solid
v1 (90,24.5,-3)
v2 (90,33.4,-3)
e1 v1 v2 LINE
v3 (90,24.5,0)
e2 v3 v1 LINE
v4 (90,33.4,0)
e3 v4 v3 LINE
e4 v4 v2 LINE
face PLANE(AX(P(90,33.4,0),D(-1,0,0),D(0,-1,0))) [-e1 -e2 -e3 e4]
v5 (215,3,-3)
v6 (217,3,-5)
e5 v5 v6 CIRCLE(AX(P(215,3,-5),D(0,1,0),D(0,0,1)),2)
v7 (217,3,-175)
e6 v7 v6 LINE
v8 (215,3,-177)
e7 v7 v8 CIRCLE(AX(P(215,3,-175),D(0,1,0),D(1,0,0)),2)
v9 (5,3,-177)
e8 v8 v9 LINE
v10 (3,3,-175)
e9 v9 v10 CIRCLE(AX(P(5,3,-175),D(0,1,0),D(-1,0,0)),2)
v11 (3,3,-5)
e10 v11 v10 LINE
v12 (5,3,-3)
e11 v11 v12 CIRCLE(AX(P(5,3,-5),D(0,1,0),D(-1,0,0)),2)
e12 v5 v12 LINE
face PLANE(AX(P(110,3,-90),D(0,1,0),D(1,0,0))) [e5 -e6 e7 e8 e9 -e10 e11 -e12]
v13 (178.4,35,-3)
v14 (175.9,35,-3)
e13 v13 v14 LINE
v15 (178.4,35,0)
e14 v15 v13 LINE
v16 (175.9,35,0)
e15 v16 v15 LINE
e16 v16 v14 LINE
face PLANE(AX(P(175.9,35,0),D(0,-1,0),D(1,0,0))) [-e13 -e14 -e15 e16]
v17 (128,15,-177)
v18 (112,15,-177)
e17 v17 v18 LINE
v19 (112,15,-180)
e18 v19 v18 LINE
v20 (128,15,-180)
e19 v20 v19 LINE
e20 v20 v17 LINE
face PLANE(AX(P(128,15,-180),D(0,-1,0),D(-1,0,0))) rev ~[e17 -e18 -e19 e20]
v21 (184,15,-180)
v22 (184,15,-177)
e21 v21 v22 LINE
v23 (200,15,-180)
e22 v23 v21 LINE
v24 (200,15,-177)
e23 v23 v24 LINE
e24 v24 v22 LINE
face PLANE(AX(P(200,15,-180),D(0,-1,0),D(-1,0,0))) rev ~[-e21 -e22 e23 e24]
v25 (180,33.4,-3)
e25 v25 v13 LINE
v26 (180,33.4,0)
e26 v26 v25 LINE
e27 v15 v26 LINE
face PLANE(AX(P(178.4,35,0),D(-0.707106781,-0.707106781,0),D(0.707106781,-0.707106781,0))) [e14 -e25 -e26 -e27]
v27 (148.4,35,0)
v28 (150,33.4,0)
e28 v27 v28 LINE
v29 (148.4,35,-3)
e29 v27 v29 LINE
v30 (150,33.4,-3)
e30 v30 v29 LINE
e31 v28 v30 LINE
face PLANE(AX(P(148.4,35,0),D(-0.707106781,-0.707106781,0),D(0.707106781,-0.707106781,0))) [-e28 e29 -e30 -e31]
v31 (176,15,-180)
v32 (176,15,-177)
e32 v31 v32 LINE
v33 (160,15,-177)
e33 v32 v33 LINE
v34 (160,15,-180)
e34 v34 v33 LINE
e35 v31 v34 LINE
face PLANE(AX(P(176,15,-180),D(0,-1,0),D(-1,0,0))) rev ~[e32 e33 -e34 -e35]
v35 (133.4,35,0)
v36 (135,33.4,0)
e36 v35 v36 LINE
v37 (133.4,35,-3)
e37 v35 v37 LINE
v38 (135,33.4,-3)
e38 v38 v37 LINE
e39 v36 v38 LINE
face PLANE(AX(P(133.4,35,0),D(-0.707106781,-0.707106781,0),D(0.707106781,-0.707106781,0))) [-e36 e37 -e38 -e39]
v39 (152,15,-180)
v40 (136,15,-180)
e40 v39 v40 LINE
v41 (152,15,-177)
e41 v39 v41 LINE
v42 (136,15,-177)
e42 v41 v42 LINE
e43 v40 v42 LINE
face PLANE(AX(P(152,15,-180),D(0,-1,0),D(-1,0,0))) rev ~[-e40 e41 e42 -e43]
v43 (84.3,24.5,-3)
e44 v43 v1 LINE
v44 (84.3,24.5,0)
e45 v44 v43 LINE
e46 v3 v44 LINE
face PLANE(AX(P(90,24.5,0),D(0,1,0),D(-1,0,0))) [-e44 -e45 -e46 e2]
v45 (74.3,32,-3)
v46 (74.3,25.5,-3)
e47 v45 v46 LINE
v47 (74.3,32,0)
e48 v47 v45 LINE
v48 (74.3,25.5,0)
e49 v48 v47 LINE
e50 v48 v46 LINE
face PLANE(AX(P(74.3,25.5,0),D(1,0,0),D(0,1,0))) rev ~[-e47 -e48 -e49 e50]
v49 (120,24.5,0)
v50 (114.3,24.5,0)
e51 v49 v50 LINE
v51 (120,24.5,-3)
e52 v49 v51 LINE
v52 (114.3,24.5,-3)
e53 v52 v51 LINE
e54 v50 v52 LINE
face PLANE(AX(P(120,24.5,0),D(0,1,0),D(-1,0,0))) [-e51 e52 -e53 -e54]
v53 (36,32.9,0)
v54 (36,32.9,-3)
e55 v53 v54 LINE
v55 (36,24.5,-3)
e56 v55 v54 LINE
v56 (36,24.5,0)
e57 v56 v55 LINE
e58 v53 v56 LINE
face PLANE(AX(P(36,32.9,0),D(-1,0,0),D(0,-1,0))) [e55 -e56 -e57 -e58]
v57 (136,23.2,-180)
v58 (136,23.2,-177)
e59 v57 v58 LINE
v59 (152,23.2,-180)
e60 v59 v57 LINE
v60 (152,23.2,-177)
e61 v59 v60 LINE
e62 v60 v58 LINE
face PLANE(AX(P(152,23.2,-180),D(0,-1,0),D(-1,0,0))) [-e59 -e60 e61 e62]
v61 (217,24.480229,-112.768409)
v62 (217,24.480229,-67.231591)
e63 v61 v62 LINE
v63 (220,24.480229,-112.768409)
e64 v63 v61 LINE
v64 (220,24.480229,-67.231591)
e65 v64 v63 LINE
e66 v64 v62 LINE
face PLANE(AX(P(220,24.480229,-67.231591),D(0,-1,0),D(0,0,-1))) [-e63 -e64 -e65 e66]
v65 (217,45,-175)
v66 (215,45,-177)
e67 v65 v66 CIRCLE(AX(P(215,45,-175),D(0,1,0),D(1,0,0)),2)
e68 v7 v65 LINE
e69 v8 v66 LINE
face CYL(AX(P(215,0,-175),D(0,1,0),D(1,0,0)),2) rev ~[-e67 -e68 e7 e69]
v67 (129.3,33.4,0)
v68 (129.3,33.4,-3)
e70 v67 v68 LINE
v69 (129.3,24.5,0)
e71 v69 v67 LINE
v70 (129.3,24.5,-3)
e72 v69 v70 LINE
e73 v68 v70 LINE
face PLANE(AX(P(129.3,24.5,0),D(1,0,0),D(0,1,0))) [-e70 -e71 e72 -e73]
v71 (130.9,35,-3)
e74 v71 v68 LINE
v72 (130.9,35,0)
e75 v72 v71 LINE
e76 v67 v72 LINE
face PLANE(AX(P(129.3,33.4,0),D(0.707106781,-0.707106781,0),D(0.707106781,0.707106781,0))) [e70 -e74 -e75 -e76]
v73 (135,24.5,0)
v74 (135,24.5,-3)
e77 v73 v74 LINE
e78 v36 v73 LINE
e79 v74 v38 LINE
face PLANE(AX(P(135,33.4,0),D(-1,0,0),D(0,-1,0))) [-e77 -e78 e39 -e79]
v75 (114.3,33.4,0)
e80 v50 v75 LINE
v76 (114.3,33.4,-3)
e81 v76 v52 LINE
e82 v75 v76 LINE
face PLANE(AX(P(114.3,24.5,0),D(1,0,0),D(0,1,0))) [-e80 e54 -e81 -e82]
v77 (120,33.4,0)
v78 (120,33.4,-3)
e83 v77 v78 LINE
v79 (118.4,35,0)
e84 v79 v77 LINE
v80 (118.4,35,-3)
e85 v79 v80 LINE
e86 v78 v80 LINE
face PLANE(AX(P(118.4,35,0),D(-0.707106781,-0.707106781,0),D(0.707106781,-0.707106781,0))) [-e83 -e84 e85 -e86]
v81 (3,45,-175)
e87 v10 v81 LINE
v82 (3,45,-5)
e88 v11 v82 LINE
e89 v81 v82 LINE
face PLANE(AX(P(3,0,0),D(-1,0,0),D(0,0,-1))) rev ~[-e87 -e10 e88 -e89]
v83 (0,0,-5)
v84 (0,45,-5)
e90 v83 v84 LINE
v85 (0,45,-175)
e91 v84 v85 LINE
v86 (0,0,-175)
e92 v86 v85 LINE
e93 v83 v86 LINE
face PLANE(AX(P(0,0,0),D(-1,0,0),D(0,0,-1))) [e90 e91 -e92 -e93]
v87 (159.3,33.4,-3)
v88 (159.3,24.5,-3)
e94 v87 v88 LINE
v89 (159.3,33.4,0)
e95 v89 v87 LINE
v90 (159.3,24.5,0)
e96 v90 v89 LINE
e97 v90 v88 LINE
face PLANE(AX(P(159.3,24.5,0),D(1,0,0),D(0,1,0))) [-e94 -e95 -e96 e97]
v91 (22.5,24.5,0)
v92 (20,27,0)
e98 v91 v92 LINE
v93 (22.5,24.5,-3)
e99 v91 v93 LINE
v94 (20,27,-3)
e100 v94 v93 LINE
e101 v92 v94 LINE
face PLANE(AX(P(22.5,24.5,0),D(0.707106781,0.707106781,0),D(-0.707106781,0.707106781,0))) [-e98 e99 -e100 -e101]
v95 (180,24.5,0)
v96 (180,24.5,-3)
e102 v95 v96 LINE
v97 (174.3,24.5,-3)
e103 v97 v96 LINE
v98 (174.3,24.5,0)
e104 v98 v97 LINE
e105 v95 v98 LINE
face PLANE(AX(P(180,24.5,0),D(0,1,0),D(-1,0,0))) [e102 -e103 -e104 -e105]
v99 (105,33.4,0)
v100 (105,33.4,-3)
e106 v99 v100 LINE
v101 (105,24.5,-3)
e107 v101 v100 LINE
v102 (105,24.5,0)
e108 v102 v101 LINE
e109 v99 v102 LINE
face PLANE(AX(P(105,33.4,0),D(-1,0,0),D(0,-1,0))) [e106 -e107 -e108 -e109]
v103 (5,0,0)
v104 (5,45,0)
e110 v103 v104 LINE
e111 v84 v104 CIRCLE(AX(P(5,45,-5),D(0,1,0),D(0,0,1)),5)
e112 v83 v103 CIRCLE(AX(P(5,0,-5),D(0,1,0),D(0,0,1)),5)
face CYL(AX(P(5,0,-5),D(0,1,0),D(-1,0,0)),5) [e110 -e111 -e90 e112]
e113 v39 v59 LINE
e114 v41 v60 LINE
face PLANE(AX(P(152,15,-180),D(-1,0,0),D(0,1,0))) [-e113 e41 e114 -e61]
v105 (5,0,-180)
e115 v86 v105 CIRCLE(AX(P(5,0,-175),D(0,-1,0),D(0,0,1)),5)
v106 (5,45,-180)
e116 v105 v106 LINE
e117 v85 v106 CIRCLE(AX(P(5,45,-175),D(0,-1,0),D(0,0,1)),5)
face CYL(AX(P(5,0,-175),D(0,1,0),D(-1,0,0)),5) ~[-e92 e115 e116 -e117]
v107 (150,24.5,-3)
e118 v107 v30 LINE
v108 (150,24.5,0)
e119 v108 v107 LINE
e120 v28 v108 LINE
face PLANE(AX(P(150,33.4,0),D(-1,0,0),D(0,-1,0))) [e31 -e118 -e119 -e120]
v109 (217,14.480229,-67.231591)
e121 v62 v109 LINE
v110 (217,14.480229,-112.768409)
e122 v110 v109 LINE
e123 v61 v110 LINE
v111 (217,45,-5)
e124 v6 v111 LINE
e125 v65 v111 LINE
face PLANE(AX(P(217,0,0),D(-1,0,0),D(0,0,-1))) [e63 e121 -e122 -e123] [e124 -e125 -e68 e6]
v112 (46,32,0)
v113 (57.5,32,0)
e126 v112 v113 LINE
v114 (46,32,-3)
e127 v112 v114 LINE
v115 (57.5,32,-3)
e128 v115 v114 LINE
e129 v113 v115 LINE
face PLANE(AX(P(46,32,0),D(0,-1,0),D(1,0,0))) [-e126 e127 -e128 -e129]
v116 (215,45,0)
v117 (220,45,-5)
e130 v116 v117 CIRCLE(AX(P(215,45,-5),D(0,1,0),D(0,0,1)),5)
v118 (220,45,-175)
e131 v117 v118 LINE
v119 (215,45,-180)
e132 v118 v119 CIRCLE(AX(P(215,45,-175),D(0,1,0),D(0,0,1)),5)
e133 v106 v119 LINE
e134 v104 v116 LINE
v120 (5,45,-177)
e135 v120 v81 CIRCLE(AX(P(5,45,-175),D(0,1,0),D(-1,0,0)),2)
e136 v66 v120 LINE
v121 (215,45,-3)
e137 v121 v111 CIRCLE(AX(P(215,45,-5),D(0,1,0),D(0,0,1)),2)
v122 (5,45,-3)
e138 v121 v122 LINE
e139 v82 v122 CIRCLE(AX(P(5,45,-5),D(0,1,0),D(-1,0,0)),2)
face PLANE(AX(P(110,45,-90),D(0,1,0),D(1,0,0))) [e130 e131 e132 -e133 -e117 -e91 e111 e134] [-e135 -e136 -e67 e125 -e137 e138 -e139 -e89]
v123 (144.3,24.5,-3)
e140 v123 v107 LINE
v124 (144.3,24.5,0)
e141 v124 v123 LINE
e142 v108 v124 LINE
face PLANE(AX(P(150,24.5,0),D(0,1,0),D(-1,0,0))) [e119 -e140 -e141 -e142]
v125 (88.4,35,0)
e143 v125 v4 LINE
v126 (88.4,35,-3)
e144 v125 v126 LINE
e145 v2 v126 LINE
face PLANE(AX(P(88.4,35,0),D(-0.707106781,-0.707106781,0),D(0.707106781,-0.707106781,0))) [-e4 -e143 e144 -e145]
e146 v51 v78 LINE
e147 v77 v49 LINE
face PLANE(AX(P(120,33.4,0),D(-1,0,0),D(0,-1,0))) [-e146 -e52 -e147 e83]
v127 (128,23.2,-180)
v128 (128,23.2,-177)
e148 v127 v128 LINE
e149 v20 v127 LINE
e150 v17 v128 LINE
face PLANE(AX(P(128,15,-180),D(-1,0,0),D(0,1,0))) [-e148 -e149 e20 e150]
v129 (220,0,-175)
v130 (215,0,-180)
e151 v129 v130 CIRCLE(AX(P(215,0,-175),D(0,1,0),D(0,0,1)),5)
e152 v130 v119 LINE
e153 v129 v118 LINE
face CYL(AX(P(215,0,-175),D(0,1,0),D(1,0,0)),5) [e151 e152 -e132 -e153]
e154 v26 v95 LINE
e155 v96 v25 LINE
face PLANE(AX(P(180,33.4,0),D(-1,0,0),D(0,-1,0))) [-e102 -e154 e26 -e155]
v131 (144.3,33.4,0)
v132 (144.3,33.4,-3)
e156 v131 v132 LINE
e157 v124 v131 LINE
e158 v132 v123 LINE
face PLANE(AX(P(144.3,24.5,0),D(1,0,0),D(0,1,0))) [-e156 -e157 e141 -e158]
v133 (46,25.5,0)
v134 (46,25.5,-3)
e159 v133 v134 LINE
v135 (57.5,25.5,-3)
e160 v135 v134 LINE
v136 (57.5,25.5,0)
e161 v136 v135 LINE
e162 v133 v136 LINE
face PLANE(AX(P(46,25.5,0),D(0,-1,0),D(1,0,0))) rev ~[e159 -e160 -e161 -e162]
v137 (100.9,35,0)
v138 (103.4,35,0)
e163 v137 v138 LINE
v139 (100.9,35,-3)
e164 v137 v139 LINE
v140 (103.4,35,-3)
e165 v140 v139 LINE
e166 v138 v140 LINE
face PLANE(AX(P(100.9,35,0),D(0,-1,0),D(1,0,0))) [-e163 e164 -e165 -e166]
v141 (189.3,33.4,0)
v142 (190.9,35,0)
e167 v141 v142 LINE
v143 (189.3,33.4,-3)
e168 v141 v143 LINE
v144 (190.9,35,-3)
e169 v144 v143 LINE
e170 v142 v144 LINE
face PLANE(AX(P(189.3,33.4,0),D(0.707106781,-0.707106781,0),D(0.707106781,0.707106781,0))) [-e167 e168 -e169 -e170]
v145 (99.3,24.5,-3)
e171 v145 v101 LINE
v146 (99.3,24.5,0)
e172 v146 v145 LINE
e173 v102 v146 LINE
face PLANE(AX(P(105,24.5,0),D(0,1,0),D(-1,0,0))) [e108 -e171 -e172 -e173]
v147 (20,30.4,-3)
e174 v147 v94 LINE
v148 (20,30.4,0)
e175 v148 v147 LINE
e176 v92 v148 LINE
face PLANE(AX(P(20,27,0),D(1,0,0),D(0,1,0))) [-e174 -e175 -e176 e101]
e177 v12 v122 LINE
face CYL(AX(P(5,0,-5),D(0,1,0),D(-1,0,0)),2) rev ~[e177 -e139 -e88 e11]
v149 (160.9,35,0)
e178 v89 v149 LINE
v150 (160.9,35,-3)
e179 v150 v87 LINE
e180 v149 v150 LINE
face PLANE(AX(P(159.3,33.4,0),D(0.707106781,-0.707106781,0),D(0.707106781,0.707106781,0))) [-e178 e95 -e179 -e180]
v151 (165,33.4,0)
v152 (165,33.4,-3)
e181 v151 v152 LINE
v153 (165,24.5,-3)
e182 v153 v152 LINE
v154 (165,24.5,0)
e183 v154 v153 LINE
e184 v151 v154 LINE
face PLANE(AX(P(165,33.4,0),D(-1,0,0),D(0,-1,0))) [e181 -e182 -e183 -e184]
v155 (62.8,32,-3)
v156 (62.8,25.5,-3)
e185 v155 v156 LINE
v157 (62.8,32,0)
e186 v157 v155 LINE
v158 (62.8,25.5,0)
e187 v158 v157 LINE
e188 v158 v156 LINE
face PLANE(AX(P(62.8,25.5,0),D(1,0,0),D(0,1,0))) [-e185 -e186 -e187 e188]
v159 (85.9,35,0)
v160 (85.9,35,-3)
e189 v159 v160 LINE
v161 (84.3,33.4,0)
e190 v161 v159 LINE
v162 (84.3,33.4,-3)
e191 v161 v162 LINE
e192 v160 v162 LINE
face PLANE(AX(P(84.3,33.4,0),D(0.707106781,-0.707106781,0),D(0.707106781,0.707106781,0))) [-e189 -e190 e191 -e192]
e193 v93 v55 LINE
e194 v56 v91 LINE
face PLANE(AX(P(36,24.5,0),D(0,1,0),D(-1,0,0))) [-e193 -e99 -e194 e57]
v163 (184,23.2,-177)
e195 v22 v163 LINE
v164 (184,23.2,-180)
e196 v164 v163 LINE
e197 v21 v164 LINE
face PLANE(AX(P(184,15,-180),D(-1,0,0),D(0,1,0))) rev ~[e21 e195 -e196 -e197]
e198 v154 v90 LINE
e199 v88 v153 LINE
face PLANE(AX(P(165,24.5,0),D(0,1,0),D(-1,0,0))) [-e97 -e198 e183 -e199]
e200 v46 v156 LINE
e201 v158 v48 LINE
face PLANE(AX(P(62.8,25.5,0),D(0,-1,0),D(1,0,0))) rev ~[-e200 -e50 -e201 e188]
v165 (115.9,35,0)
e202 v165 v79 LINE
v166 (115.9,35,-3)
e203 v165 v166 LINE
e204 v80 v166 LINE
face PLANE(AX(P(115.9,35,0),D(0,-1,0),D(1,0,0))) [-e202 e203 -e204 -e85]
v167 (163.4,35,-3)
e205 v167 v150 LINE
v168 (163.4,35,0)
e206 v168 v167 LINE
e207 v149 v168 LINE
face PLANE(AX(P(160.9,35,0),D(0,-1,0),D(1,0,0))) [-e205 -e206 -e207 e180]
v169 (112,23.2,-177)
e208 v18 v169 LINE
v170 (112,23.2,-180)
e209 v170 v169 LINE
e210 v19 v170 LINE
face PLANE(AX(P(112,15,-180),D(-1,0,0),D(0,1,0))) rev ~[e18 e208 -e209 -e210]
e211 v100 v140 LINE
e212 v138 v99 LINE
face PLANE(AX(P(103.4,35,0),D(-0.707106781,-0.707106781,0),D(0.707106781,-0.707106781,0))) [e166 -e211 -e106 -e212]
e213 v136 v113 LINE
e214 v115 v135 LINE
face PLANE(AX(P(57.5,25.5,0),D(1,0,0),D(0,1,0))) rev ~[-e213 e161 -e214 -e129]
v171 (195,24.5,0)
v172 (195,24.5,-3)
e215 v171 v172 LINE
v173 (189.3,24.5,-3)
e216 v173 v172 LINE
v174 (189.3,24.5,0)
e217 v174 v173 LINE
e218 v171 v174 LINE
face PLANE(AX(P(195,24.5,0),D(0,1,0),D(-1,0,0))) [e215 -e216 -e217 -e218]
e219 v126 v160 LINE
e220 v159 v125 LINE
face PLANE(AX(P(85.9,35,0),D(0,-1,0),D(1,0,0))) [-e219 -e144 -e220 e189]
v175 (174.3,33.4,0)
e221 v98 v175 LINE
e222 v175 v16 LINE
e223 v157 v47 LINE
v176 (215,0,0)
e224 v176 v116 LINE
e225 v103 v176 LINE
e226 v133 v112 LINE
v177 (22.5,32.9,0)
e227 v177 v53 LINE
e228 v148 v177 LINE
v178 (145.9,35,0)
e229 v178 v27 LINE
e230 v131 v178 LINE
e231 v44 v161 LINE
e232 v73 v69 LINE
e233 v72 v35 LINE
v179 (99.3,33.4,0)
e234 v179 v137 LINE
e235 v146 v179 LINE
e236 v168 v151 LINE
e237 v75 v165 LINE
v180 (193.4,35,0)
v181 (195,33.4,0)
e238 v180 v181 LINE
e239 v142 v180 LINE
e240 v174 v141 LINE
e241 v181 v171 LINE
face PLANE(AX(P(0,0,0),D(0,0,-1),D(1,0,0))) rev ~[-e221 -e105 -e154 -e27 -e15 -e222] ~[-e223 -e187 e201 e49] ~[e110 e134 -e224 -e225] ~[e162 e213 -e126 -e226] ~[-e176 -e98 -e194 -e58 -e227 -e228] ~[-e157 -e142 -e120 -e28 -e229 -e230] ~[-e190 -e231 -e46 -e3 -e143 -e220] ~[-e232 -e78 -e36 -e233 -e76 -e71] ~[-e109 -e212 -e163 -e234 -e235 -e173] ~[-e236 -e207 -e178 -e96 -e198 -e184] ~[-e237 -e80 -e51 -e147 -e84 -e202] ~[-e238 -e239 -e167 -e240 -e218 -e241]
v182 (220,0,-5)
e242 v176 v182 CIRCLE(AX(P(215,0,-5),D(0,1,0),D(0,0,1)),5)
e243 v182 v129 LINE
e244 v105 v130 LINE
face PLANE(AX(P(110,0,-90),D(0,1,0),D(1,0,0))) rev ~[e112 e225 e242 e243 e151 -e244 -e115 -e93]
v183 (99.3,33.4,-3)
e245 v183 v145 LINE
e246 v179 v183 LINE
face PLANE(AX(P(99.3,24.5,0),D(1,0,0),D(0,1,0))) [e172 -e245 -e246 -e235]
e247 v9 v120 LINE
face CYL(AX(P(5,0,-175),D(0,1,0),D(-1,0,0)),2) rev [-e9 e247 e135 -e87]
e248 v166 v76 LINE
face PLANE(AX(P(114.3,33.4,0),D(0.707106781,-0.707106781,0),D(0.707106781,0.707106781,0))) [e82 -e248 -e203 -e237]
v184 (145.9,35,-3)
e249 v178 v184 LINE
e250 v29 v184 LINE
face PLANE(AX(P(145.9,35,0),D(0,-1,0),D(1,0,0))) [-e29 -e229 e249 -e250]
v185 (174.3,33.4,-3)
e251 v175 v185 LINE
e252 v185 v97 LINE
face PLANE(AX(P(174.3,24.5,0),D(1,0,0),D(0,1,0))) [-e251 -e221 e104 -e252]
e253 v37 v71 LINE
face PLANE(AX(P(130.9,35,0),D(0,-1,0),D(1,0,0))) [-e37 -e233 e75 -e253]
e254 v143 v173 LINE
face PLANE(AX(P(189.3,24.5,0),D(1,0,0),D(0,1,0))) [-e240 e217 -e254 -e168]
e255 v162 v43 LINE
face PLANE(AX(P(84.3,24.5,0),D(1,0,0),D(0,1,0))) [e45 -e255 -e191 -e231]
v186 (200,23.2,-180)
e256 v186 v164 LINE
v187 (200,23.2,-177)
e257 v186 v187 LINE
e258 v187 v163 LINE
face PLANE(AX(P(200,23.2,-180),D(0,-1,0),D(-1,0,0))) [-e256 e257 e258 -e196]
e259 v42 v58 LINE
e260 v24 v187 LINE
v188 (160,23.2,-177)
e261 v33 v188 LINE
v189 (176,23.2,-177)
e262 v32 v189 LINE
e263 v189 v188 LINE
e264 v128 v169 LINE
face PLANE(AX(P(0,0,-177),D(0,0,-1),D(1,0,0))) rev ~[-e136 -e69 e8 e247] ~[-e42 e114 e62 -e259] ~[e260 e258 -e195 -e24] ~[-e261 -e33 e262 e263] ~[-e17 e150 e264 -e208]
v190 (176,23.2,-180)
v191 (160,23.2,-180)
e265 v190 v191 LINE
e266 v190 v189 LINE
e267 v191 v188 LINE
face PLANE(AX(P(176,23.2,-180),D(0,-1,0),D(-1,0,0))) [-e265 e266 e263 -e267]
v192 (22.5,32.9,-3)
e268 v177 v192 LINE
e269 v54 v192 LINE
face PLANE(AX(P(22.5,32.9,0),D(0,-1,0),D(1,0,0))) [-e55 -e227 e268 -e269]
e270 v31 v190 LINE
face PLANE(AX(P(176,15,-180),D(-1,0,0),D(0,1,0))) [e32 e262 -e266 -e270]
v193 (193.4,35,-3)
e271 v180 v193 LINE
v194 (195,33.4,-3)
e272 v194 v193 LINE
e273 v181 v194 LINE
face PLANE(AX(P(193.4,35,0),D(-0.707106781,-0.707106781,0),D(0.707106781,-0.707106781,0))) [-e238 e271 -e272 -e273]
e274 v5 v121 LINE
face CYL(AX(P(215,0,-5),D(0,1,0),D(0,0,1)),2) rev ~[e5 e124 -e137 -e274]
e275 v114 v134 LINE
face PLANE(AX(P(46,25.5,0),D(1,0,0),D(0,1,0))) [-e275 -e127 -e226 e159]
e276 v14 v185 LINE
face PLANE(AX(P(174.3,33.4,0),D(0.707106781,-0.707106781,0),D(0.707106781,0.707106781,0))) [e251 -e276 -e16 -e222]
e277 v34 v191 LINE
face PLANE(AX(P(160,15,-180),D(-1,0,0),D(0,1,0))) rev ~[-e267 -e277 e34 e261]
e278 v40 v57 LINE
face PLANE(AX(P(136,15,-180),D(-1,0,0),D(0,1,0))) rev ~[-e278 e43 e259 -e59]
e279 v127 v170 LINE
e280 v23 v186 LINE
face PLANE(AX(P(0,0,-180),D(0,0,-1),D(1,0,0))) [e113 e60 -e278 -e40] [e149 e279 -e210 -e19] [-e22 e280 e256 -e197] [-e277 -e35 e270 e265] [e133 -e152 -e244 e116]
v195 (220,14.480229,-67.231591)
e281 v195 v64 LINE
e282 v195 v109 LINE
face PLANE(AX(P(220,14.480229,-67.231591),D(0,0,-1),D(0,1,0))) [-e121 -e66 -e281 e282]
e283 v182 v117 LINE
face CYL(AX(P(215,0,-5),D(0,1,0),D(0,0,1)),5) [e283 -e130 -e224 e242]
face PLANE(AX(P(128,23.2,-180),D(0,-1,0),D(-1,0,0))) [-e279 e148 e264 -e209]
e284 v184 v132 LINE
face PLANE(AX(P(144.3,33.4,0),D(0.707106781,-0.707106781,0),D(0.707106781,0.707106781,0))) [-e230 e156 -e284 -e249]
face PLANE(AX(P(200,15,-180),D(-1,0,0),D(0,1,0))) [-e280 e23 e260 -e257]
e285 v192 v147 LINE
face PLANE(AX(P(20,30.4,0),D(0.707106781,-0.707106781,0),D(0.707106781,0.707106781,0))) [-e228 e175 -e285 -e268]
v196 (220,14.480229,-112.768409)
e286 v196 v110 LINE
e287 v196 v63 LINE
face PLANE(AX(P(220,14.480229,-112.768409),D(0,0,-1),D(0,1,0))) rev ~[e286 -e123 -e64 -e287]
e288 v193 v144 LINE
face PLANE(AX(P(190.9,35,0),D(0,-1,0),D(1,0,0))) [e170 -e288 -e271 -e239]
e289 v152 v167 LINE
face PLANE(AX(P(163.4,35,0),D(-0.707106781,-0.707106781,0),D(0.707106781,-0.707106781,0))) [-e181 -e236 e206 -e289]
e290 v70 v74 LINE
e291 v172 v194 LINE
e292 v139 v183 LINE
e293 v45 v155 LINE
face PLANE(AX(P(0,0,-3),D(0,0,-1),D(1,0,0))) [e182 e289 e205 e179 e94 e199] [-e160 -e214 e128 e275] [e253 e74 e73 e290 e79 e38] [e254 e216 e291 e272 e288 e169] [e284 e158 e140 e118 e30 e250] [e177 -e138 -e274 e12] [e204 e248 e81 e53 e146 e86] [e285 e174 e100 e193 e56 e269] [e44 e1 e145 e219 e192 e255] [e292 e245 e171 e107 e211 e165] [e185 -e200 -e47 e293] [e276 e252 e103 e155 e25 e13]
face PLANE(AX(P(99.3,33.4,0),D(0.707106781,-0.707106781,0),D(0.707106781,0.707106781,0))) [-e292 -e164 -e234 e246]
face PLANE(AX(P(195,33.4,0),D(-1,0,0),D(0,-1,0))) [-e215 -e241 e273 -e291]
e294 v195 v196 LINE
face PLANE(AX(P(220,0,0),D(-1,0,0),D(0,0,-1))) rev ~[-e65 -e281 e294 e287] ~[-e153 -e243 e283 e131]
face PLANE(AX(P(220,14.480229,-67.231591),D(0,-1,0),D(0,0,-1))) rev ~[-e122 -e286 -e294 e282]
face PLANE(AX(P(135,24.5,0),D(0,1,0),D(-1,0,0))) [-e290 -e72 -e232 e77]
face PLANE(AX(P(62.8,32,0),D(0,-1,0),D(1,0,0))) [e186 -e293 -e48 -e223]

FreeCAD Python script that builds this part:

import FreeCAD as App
import Part
import Sketcher
Q = App.Units.Quantity


def edges_at(feature, points):
    """Names of the edges that pass closest to the given points."""
    edges = feature.Shape.Edges
    near = lambda p: min(range(len(edges)), key=lambda i: edges[i].distToShape(Part.Vertex(*p))[0])
    return sorted({f"Edge{near(p) + 1}" for p in points})


def faces_at(feature, points):
    """Names of the faces that lie closest to the given points."""
    faces = feature.Shape.Faces
    near = lambda p: min(range(len(faces)), key=lambda i: faces[i].distToShape(Part.Vertex(*p))[0])
    return sorted({f"Face{near(p) + 1}" for p in points})

doc = App.newDocument("Part")
params = doc.addObject("Spreadsheet::Sheet", "Params")
for row, (alias, value) in enumerate([
    ("sketch1_width", "220 mm"),
    ("sketch1_height", "180 mm"),
    ("pad1_length", "45 mm"),
    ("fillet_radius", "5 mm"),
    ("thickness_wall", "3 mm"),
    ("sketch2_width", "2.5 mm"),
    ("sketch2_width2", "5.7 mm"),
    ("sketch2_height", "8.9 mm"),
    ("pocket1_length", "5 mm"),
    ("sketch3_width", "13.5 mm"),
    ("sketch3_height", "3.4 mm"),
    ("sketch3_height2", "8.4 mm"),
    ("pocket2_length", "5 mm"),
    ("sketch4_width", "11.5 mm"),
    ("sketch4_height", "6.5 mm"),
    ("pocket3_length", "5 mm"),
    ("sketch5_width", "10 mm"),
    ("pocket4_length", "5 mm"),
    ("sketch6_width", "16 mm"),
    ("sketch6_height", "8.2 mm"),
    ("pocket5_length", "5 mm"),
], start=1):
    params.set(f"A{row}", alias)
    params.set(f"B{row}", "=" + value)
    params.setAlias(f"B{row}", alias)

body = doc.addObject("PartDesign::Body", "Body")

# Sketch on XZ plane
sketch1 = body.newObject("Sketcher::SketchObject", "Sketch")
sketch1.AttachmentSupport = (doc.getObject("XZ_Plane"), [""])
sketch1.MapMode = "FlatFace"
sketch1.addGeometry(Part.LineSegment(App.Vector(0, -180, 0), App.Vector(0, 0, 0)), False)
sketch1.addGeometry(Part.LineSegment(App.Vector(0, 0, 0), App.Vector(220, 0, 0)), False)
sketch1.addGeometry(Part.LineSegment(App.Vector(220, 0, 0), App.Vector(220, -180, 0)), False)
sketch1.addGeometry(Part.LineSegment(App.Vector(220, -180, 0), App.Vector(0, -180, 0)), False)
sketch1.addConstraint(Sketcher.Constraint("Coincident", 0, 2, 1, 1))
sketch1.addConstraint(Sketcher.Constraint("Coincident", 1, 2, 2, 1))
sketch1.addConstraint(Sketcher.Constraint("Coincident", 2, 2, 3, 1))
sketch1.addConstraint(Sketcher.Constraint("Coincident", 3, 2, 0, 1))
sketch1.addConstraint(Sketcher.Constraint("Vertical", 0))
sketch1.addConstraint(Sketcher.Constraint("Horizontal", 1))
sketch1.addConstraint(Sketcher.Constraint("Vertical", 2))
sketch1.addConstraint(Sketcher.Constraint("Horizontal", 3))
sketch1.addConstraint(Sketcher.Constraint("Coincident", 0, 2, -1, 1))
sketch1.addConstraint(Sketcher.Constraint("DistanceX", 1, 1, 1, 2, Q("220 mm")))
sketch1.addConstraint(Sketcher.Constraint("DistanceY", 0, 1, 0, 2, Q("180 mm")))
sketch1.setExpression("Constraints[9]", "Params.sketch1_width")
sketch1.setExpression("Constraints[10]", "Params.sketch1_height")
pad1 = body.newObject("PartDesign::Pad", "Pad")
pad1.Profile = sketch1
pad1.setExpression("Length", "Params.pad1_length")
pad1.Reversed = True
doc.recompute()

fillet = body.newObject("PartDesign::Fillet", "Fillet")
fillet.Base = (pad1, edges_at(pad1, [
    (0, 22.5, -180),
    (220, 22.5, -180),
    (220, 22.5, 0),
    (0, 22.5, 0),
]))
fillet.setExpression("Radius", "Params.fillet_radius")
doc.recompute()

thickness = body.newObject("PartDesign::Thickness", "Thickness")
thickness.Base = (fillet, faces_at(fillet, [(110, 45, -90)]))
thickness.setExpression("Value", "Params.thickness_wall")
thickness.Reversed = True
thickness.Join = "Intersection"

# Sketch on XY plane
sketch2 = body.newObject("Sketcher::SketchObject", "Sketch001")
sketch2.AttachmentSupport = (doc.getObject("XY_Plane"), [""])
sketch2.MapMode = "FlatFace"
sketch2.addGeometry(Part.LineSegment(App.Vector(178.4, 35, 0), App.Vector(175.9, 35, 0)), False)
sketch2.addGeometry(Part.LineSegment(App.Vector(175.9, 35, 0), App.Vector(174.3, 33.4, 0)), False)
sketch2.addGeometry(Part.LineSegment(App.Vector(174.3, 33.4, 0), App.Vector(174.3, 24.5, 0)), False)
sketch2.addGeometry(Part.LineSegment(App.Vector(174.3, 24.5, 0), App.Vector(180, 24.5, 0)), False)
sketch2.addGeometry(Part.LineSegment(App.Vector(180, 24.5, 0), App.Vector(180, 33.4, 0)), False)
sketch2.addGeometry(Part.LineSegment(App.Vector(180, 33.4, 0), App.Vector(178.4, 35, 0)), False)
sketch2.addGeometry(Part.LineSegment(App.Vector(193.4, 35, 0), App.Vector(190.9, 35, 0)), False)
sketch2.addGeometry(Part.LineSegment(App.Vector(190.9, 35, 0), App.Vector(189.3, 33.4, 0)), False)
sketch2.addGeometry(Part.LineSegment(App.Vector(189.3, 33.4, 0), App.Vector(189.3, 24.5, 0)), False)
sketch2.addGeometry(Part.LineSegment(App.Vector(189.3, 24.5, 0), App.Vector(195, 24.5, 0)), False)
sketch2.addGeometry(Part.LineSegment(App.Vector(195, 24.5, 0), App.Vector(195, 33.4, 0)), False)
sketch2.addGeometry(Part.LineSegment(App.Vector(195, 33.4, 0), App.Vector(193.4, 35, 0)), False)
sketch2.addGeometry(Part.LineSegment(App.Vector(163.4, 35, 0), App.Vector(160.9, 35, 0)), False)
sketch2.addGeometry(Part.LineSegment(App.Vector(160.9, 35, 0), App.Vector(159.3, 33.4, 0)), False)
sketch2.addGeometry(Part.LineSegment(App.Vector(159.3, 33.4, 0), App.Vector(159.3, 24.5, 0)), False)
sketch2.addGeometry(Part.LineSegment(App.Vector(159.3, 24.5, 0), App.Vector(165, 24.5, 0)), False)
sketch2.addGeometry(Part.LineSegment(App.Vector(165, 24.5, 0), App.Vector(165, 33.4, 0)), False)
sketch2.addGeometry(Part.LineSegment(App.Vector(165, 33.4, 0), App.Vector(163.4, 35, 0)), False)
sketch2.addGeometry(Part.LineSegment(App.Vector(148.4, 35, 0), App.Vector(145.9, 35, 0)), False)
sketch2.addGeometry(Part.LineSegment(App.Vector(145.9, 35, 0), App.Vector(144.3, 33.4, 0)), False)
sketch2.addGeometry(Part.LineSegment(App.Vector(144.3, 33.4, 0), App.Vector(144.3, 24.5, 0)), False)
sketch2.addGeometry(Part.LineSegment(App.Vector(144.3, 24.5, 0), App.Vector(150, 24.5, 0)), False)
sketch2.addGeometry(Part.LineSegment(App.Vector(150, 24.5, 0), App.Vector(150, 33.4, 0)), False)
sketch2.addGeometry(Part.LineSegment(App.Vector(150, 33.4, 0), App.Vector(148.4, 35, 0)), False)
sketch2.addGeometry(Part.LineSegment(App.Vector(133.4, 35, 0), App.Vector(130.9, 35, 0)), False)
sketch2.addGeometry(Part.LineSegment(App.Vector(130.9, 35, 0), App.Vector(129.3, 33.4, 0)), False)
sketch2.addGeometry(Part.LineSegment(App.Vector(129.3, 33.4, 0), App.Vector(129.3, 24.5, 0)), False)
sketch2.addGeometry(Part.LineSegment(App.Vector(129.3, 24.5, 0), App.Vector(135, 24.5, 0)), False)
sketch2.addGeometry(Part.LineSegment(App.Vector(135, 24.5, 0), App.Vector(135, 33.4, 0)), False)
sketch2.addGeometry(Part.LineSegment(App.Vector(135, 33.4, 0), App.Vector(133.4, 35, 0)), False)
sketch2.addGeometry(Part.LineSegment(App.Vector(118.4, 35, 0), App.Vector(115.9, 35, 0)), False)
sketch2.addGeometry(Part.LineSegment(App.Vector(115.9, 35, 0), App.Vector(114.3, 33.4, 0)), False)
sketch2.addGeometry(Part.LineSegment(App.Vector(114.3, 33.4, 0), App.Vector(114.3, 24.5, 0)), False)
sketch2.addGeometry(Part.LineSegment(App.Vector(114.3, 24.5, 0), App.Vector(120, 24.5, 0)), False)
sketch2.addGeometry(Part.LineSegment(App.Vector(120, 24.5, 0), App.Vector(120, 33.4, 0)), False)
sketch2.addGeometry(Part.LineSegment(App.Vector(120, 33.4, 0), App.Vector(118.4, 35, 0)), False)
sketch2.addGeometry(Part.LineSegment(App.Vector(103.4, 35, 0), App.Vector(100.9, 35, 0)), False)
sketch2.addGeometry(Part.LineSegment(App.Vector(100.9, 35, 0), App.Vector(99.3, 33.4, 0)), False)
sketch2.addGeometry(Part.LineSegment(App.Vector(99.3, 33.4, 0), App.Vector(99.3, 24.5, 0)), False)
sketch2.addGeometry(Part.LineSegment(App.Vector(99.3, 24.5, 0), App.Vector(105, 24.5, 0)), False)
sketch2.addGeometry(Part.LineSegment(App.Vector(105, 24.5, 0), App.Vector(105, 33.4, 0)), False)
sketch2.addGeometry(Part.LineSegment(App.Vector(105, 33.4, 0), App.Vector(103.4, 35, 0)), False)
sketch2.addGeometry(Part.LineSegment(App.Vector(88.4, 35, 0), App.Vector(85.9, 35, 0)), False)
sketch2.addGeometry(Part.LineSegment(App.Vector(85.9, 35, 0), App.Vector(84.3, 33.4, 0)), False)
sketch2.addGeometry(Part.LineSegment(App.Vector(84.3, 33.4, 0), App.Vector(84.3, 24.5, 0)), False)
sketch2.addGeometry(Part.LineSegment(App.Vector(84.3, 24.5, 0), App.Vector(90, 24.5, 0)), False)
sketch2.addGeometry(Part.LineSegment(App.Vector(90, 24.5, 0), App.Vector(90, 33.4, 0)), False)
sketch2.addGeometry(Part.LineSegment(App.Vector(90, 33.4, 0), App.Vector(88.4, 35, 0)), False)
sketch2.addConstraint(Sketcher.Constraint("Coincident", 0, 2, 1, 1))
sketch2.addConstraint(Sketcher.Constraint("Coincident", 1, 2, 2, 1))
sketch2.addConstraint(Sketcher.Constraint("Coincident", 2, 2, 3, 1))
sketch2.addConstraint(Sketcher.Constraint("Coincident", 3, 2, 4, 1))
sketch2.addConstraint(Sketcher.Constraint("Coincident", 4, 2, 5, 1))
sketch2.addConstraint(Sketcher.Constraint("Coincident", 5, 2, 0, 1))
sketch2.addConstraint(Sketcher.Constraint("Coincident", 6, 2, 7, 1))
sketch2.addConstraint(Sketcher.Constraint("Coincident", 7, 2, 8, 1))
sketch2.addConstraint(Sketcher.Constraint("Coincident", 8, 2, 9, 1))
sketch2.addConstraint(Sketcher.Constraint("Coincident", 9, 2, 10, 1))
sketch2.addConstraint(Sketcher.Constraint("Coincident", 10, 2, 11, 1))
sketch2.addConstraint(Sketcher.Constraint("Coincident", 11, 2, 6, 1))
sketch2.addConstraint(Sketcher.Constraint("Coincident", 12, 2, 13, 1))
sketch2.addConstraint(Sketcher.Constraint("Coincident", 13, 2, 14, 1))
sketch2.addConstraint(Sketcher.Constraint("Coincident", 14, 2, 15, 1))
sketch2.addConstraint(Sketcher.Constraint("Coincident", 15, 2, 16, 1))
sketch2.addConstraint(Sketcher.Constraint("Coincident", 16, 2, 17, 1))
sketch2.addConstraint(Sketcher.Constraint("Coincident", 17, 2, 12, 1))
sketch2.addConstraint(Sketcher.Constraint("Coincident", 18, 2, 19, 1))
sketch2.addConstraint(Sketcher.Constraint("Coincident", 19, 2, 20, 1))
sketch2.addConstraint(Sketcher.Constraint("Coincident", 20, 2, 21, 1))
sketch2.addConstraint(Sketcher.Constraint("Coincident", 21, 2, 22, 1))
sketch2.addConstraint(Sketcher.Constraint("Coincident", 22, 2, 23, 1))
sketch2.addConstraint(Sketcher.Constraint("Coincident", 23, 2, 18, 1))
sketch2.addConstraint(Sketcher.Constraint("Coincident", 24, 2, 25, 1))
sketch2.addConstraint(Sketcher.Constraint("Coincident", 25, 2, 26, 1))
sketch2.addConstraint(Sketcher.Constraint("Coincident", 26, 2, 27, 1))
sketch2.addConstraint(Sketcher.Constraint("Coincident", 27, 2, 28, 1))
sketch2.addConstraint(Sketcher.Constraint("Coincident", 28, 2, 29, 1))
sketch2.addConstraint(Sketcher.Constraint("Coincident", 29, 2, 24, 1))
sketch2.addConstraint(Sketcher.Constraint("Coincident", 30, 2, 31, 1))
sketch2.addConstraint(Sketcher.Constraint("Coincident", 31, 2, 32, 1))
sketch2.addConstraint(Sketcher.Constraint("Coincident", 32, 2, 33, 1))
sketch2.addConstraint(Sketcher.Constraint("Coincident", 33, 2, 34, 1))
sketch2.addConstraint(Sketcher.Constraint("Coincident", 34, 2, 35, 1))
sketch2.addConstraint(Sketcher.Constraint("Coincident", 35, 2, 30, 1))
sketch2.addConstraint(Sketcher.Constraint("Coincident", 36, 2, 37, 1))
sketch2.addConstraint(Sketcher.Constraint("Coincident", 37, 2, 38, 1))
sketch2.addConstraint(Sketcher.Constraint("Coincident", 38, 2, 39, 1))
sketch2.addConstraint(Sketcher.Constraint("Coincident", 39, 2, 40, 1))
sketch2.addConstraint(Sketcher.Constraint("Coincident", 40, 2, 41, 1))
sketch2.addConstraint(Sketcher.Constraint("Coincident", 41, 2, 36, 1))
sketch2.addConstraint(Sketcher.Constraint("Coincident", 42, 2, 43, 1))
sketch2.addConstraint(Sketcher.Constraint("Coincident", 43, 2, 44, 1))
sketch2.addConstraint(Sketcher.Constraint("Coincident", 44, 2, 45, 1))
sketch2.addConstraint(Sketcher.Constraint("Coincident", 45, 2, 46, 1))
sketch2.addConstraint(Sketcher.Constraint("Coincident", 46, 2, 47, 1))
sketch2.addConstraint(Sketcher.Constraint("Coincident", 47, 2, 42, 1))
sketch2.addConstraint(Sketcher.Constraint("Horizontal", 0))
sketch2.addConstraint(Sketcher.Constraint("Vertical", 2))
sketch2.addConstraint(Sketcher.Constraint("Horizontal", 3))
sketch2.addConstraint(Sketcher.Constraint("Vertical", 4))
sketch2.addConstraint(Sketcher.Constraint("Horizontal", 6))
sketch2.addConstraint(Sketcher.Constraint("Vertical", 8))
sketch2.addConstraint(Sketcher.Constraint("Horizontal", 9))
sketch2.addConstraint(Sketcher.Constraint("Vertical", 10))
sketch2.addConstraint(Sketcher.Constraint("Horizontal", 12))
sketch2.addConstraint(Sketcher.Constraint("Vertical", 14))
sketch2.addConstraint(Sketcher.Constraint("Horizontal", 15))
sketch2.addConstraint(Sketcher.Constraint("Vertical", 16))
sketch2.addConstraint(Sketcher.Constraint("Horizontal", 18))
sketch2.addConstraint(Sketcher.Constraint("Vertical", 20))
sketch2.addConstraint(Sketcher.Constraint("Horizontal", 21))
sketch2.addConstraint(Sketcher.Constraint("Vertical", 22))
sketch2.addConstraint(Sketcher.Constraint("Horizontal", 24))
sketch2.addConstraint(Sketcher.Constraint("Vertical", 26))
sketch2.addConstraint(Sketcher.Constraint("Horizontal", 27))
sketch2.addConstraint(Sketcher.Constraint("Vertical", 28))
sketch2.addConstraint(Sketcher.Constraint("Horizontal", 30))
sketch2.addConstraint(Sketcher.Constraint("Vertical", 32))
sketch2.addConstraint(Sketcher.Constraint("Horizontal", 33))
sketch2.addConstraint(Sketcher.Constraint("Vertical", 34))
sketch2.addConstraint(Sketcher.Constraint("Horizontal", 36))
sketch2.addConstraint(Sketcher.Constraint("Vertical", 38))
sketch2.addConstraint(Sketcher.Constraint("Horizontal", 39))
sketch2.addConstraint(Sketcher.Constraint("Vertical", 40))
sketch2.addConstraint(Sketcher.Constraint("Horizontal", 42))
sketch2.addConstraint(Sketcher.Constraint("Vertical", 44))
sketch2.addConstraint(Sketcher.Constraint("Horizontal", 45))
sketch2.addConstraint(Sketcher.Constraint("Vertical", 46))
sketch2.addConstraint(Sketcher.Constraint("Perpendicular", 1, 5))
sketch2.addConstraint(Sketcher.Constraint("Perpendicular", 5, 7))
sketch2.addConstraint(Sketcher.Constraint("Perpendicular", 7, 11))
sketch2.addConstraint(Sketcher.Constraint("Perpendicular", 11, 13))
sketch2.addConstraint(Sketcher.Constraint("Perpendicular", 13, 17))
sketch2.addConstraint(Sketcher.Constraint("Perpendicular", 17, 19))
sketch2.addConstraint(Sketcher.Constraint("Perpendicular", 19, 23))
sketch2.addConstraint(Sketcher.Constraint("Perpendicular", 23, 25))
sketch2.addConstraint(Sketcher.Constraint("Perpendicular", 25, 29))
sketch2.addConstraint(Sketcher.Constraint("Perpendicular", 29, 31))
sketch2.addConstraint(Sketcher.Constraint("Perpendicular", 31, 35))
sketch2.addConstraint(Sketcher.Constraint("Perpendicular", 35, 37))
sketch2.addConstraint(Sketcher.Constraint("Perpendicular", 37, 41))
sketch2.addConstraint(Sketcher.Constraint("Perpendicular", 41, 43))
sketch2.addConstraint(Sketcher.Constraint("Perpendicular", 43, 47))
sketch2.addConstraint(Sketcher.Constraint("Horizontal", 1, 2, 4, 2))
sketch2.addConstraint(Sketcher.Constraint("Horizontal", 5, 2, 6, 2))
sketch2.addConstraint(Sketcher.Constraint("Horizontal", 4, 2, 7, 2))
sketch2.addConstraint(Sketcher.Constraint("Horizontal", 3, 2, 8, 2))
sketch2.addConstraint(Sketcher.Constraint("Horizontal", 7, 2, 10, 2))
sketch2.addConstraint(Sketcher.Constraint("Horizontal", 11, 2, 12, 2))
sketch2.addConstraint(Sketcher.Constraint("Horizontal", 10, 2, 13, 2))
sketch2.addConstraint(Sketcher.Constraint("Horizontal", 9, 2, 14, 2))
sketch2.addConstraint(Sketcher.Constraint("Horizontal", 13, 2, 16, 2))
sketch2.addConstraint(Sketcher.Constraint("Horizontal", 17, 2, 18, 2))
sketch2.addConstraint(Sketcher.Constraint("Horizontal", 16, 2, 19, 2))
sketch2.addConstraint(Sketcher.Constraint("Horizontal", 15, 2, 20, 2))
sketch2.addConstraint(Sketcher.Constraint("Horizontal", 19, 2, 22, 2))
sketch2.addConstraint(Sketcher.Constraint("Horizontal", 23, 2, 24, 2))
sketch2.addConstraint(Sketcher.Constraint("Horizontal", 22, 2, 25, 2))
sketch2.addConstraint(Sketcher.Constraint("Horizontal", 21, 2, 26, 2))
sketch2.addConstraint(Sketcher.Constraint("Horizontal", 25, 2, 28, 2))
sketch2.addConstraint(Sketcher.Constraint("Horizontal", 29, 2, 30, 2))
sketch2.addConstraint(Sketcher.Constraint("Horizontal", 28, 2, 31, 2))
sketch2.addConstraint(Sketcher.Constraint("Horizontal", 27, 2, 32, 2))
sketch2.addConstraint(Sketcher.Constraint("Horizontal", 31, 2, 34, 2))
sketch2.addConstraint(Sketcher.Constraint("Horizontal", 35, 2, 36, 2))
sketch2.addConstraint(Sketcher.Constraint("Horizontal", 34, 2, 37, 2))
sketch2.addConstraint(Sketcher.Constraint("Horizontal", 33, 2, 38, 2))
sketch2.addConstraint(Sketcher.Constraint("Horizontal", 37, 2, 40, 2))
sketch2.addConstraint(Sketcher.Constraint("Horizontal", 41, 2, 42, 2))
sketch2.addConstraint(Sketcher.Constraint("Horizontal", 40, 2, 43, 2))
sketch2.addConstraint(Sketcher.Constraint("Horizontal", 39, 2, 44, 2))
sketch2.addConstraint(Sketcher.Constraint("Horizontal", 43, 2, 46, 2))
sketch2.addConstraint(Sketcher.Constraint("Equal", 0, 6))
sketch2.addConstraint(Sketcher.Constraint("Equal", 6, 12))
sketch2.addConstraint(Sketcher.Constraint("Equal", 12, 18))
sketch2.addConstraint(Sketcher.Constraint("Equal", 18, 24))
sketch2.addConstraint(Sketcher.Constraint("Equal", 24, 30))
sketch2.addConstraint(Sketcher.Constraint("Equal", 30, 36))
sketch2.addConstraint(Sketcher.Constraint("Equal", 36, 42))
sketch2.addConstraint(Sketcher.Constraint("Equal", 1, 5))
sketch2.addConstraint(Sketcher.Constraint("DistanceX", 0, 2, 0, 1, Q("2.5 mm")))
sketch2.addConstraint(Sketcher.Constraint("DistanceX", 3, 1, 3, 2, Q("5.7 mm")))
sketch2.addConstraint(Sketcher.Constraint("DistanceY", 2, 2, 2, 1, Q("8.9 mm")))
sketch2.addConstraint(Sketcher.Constraint("DistanceY", -1, 1, 0, 2, Q("35 mm")))
sketch2.addConstraint(Sketcher.Constraint("DistanceX", -1, 1, 3, 2, Q("180 mm")))
sketch2.addConstraint(Sketcher.Constraint("DistanceX", -1, 1, 9, 2, Q("195 mm")))
sketch2.addConstraint(Sketcher.Constraint("DistanceX", -1, 1, 15, 2, Q("165 mm")))
sketch2.addConstraint(Sketcher.Constraint("DistanceX", -1, 1, 21, 2, Q("150 mm")))
sketch2.addConstraint(Sketcher.Constraint("DistanceX", -1, 1, 27, 2, Q("135 mm")))
sketch2.addConstraint(Sketcher.Constraint("DistanceX", -1, 1, 33, 2, Q("120 mm")))
sketch2.addConstraint(Sketcher.Constraint("DistanceX", -1, 1, 39, 2, Q("105 mm")))
sketch2.addConstraint(Sketcher.Constraint("DistanceX", -1, 1, 45, 2, Q("90 mm")))
sketch2.setExpression("Constraints[132]", "Params.sketch2_width")
sketch2.setExpression("Constraints[133]", "Params.sketch2_width2")
sketch2.setExpression("Constraints[134]", "Params.sketch2_height")
pocket1 = body.newObject("PartDesign::Pocket", "Pocket")
pocket1.Profile = sketch2
pocket1.setExpression("Length", "Params.pocket1_length")

# Sketch on XY plane
sketch3 = body.newObject("Sketcher::SketchObject", "Sketch002")
sketch3.AttachmentSupport = (doc.getObject("XY_Plane"), [""])
sketch3.MapMode = "FlatFace"
sketch3.addGeometry(Part.LineSegment(App.Vector(36, 32.9, 0), App.Vector(22.5, 32.9, 0)), False)
sketch3.addGeometry(Part.LineSegment(App.Vector(22.5, 32.9, 0), App.Vector(20, 30.4, 0)), False)
sketch3.addGeometry(Part.LineSegment(App.Vector(20, 30.4, 0), App.Vector(20, 27, 0)), False)
sketch3.addGeometry(Part.LineSegment(App.Vector(20, 27, 0), App.Vector(22.5, 24.5, 0)), False)
sketch3.addGeometry(Part.LineSegment(App.Vector(22.5, 24.5, 0), App.Vector(36, 24.5, 0)), False)
sketch3.addGeometry(Part.LineSegment(App.Vector(36, 24.5, 0), App.Vector(36, 32.9, 0)), False)
sketch3.addConstraint(Sketcher.Constraint("Coincident", 0, 2, 1, 1))
sketch3.addConstraint(Sketcher.Constraint("Coincident", 1, 2, 2, 1))
sketch3.addConstraint(Sketcher.Constraint("Coincident", 2, 2, 3, 1))
sketch3.addConstraint(Sketcher.Constraint("Coincident", 3, 2, 4, 1))
sketch3.addConstraint(Sketcher.Constraint("Coincident", 4, 2, 5, 1))
sketch3.addConstraint(Sketcher.Constraint("Coincident", 5, 2, 0, 1))
sketch3.addConstraint(Sketcher.Constraint("Horizontal", 0))
sketch3.addConstraint(Sketcher.Constraint("Vertical", 2))
sketch3.addConstraint(Sketcher.Constraint("Horizontal", 4))
sketch3.addConstraint(Sketcher.Constraint("Vertical", 5))
sketch3.addConstraint(Sketcher.Constraint("Perpendicular", 1, 3))
sketch3.addConstraint(Sketcher.Constraint("Vertical", 0, 2, 3, 2))
sketch3.addConstraint(Sketcher.Constraint("Equal", 1, 3))
sketch3.addConstraint(Sketcher.Constraint("DistanceX", 0, 2, 0, 1, Q("13.5 mm")))
sketch3.addConstraint(Sketcher.Constraint("DistanceY", 2, 2, 2, 1, Q("3.4 mm")))
sketch3.addConstraint(Sketcher.Constraint("DistanceY", 5, 1, 5, 2, Q("8.4 mm")))
sketch3.addConstraint(Sketcher.Constraint("DistanceX", -1, 1, 1, 2, Q("20 mm")))
sketch3.addConstraint(Sketcher.Constraint("DistanceY", -1, 1, 2, 2, Q("27 mm")))
sketch3.setExpression("Constraints[13]", "Params.sketch3_width")
sketch3.setExpression("Constraints[14]", "Params.sketch3_height")
sketch3.setExpression("Constraints[15]", "Params.sketch3_height2")
pocket2 = body.newObject("PartDesign::Pocket", "Pocket001")
pocket2.Profile = sketch3
pocket2.setExpression("Length", "Params.pocket2_length")

# Sketch on XY plane
sketch4 = body.newObject("Sketcher::SketchObject", "Sketch003")
sketch4.AttachmentSupport = (doc.getObject("XY_Plane"), [""])
sketch4.MapMode = "FlatFace"
sketch4.addGeometry(Part.LineSegment(App.Vector(46, 32, 0), App.Vector(46, 26, 0)), False)
sketch4.addGeometry(Part.LineSegment(App.Vector(46, 26, 0), App.Vector(58, 26, 0)), False)
sketch4.addGeometry(Part.LineSegment(App.Vector(58, 26, 0), App.Vector(58, 32, 0)), False)
sketch4.addGeometry(Part.LineSegment(App.Vector(58, 32, 0), App.Vector(46, 32, 0)), False)
sketch4.addGeometry(Part.LineSegment(App.Vector(63, 32, 0), App.Vector(63, 26, 0)), False)
sketch4.addGeometry(Part.LineSegment(App.Vector(63, 26, 0), App.Vector(74, 26, 0)), False)
sketch4.addGeometry(Part.LineSegment(App.Vector(74, 26, 0), App.Vector(74, 32, 0)), False)
sketch4.addGeometry(Part.LineSegment(App.Vector(74, 32, 0), App.Vector(63, 32, 0)), False)
sketch4.addConstraint(Sketcher.Constraint("Coincident", 0, 2, 1, 1))
sketch4.addConstraint(Sketcher.Constraint("Coincident", 1, 2, 2, 1))
sketch4.addConstraint(Sketcher.Constraint("Coincident", 2, 2, 3, 1))
sketch4.addConstraint(Sketcher.Constraint("Coincident", 3, 2, 0, 1))
sketch4.addConstraint(Sketcher.Constraint("Coincident", 4, 2, 5, 1))
sketch4.addConstraint(Sketcher.Constraint("Coincident", 5, 2, 6, 1))
sketch4.addConstraint(Sketcher.Constraint("Coincident", 6, 2, 7, 1))
sketch4.addConstraint(Sketcher.Constraint("Coincident", 7, 2, 4, 1))
sketch4.addConstraint(Sketcher.Constraint("Vertical", 0))
sketch4.addConstraint(Sketcher.Constraint("Horizontal", 1))
sketch4.addConstraint(Sketcher.Constraint("Vertical", 2))
sketch4.addConstraint(Sketcher.Constraint("Horizontal", 3))
sketch4.addConstraint(Sketcher.Constraint("Vertical", 4))
sketch4.addConstraint(Sketcher.Constraint("Horizontal", 5))
sketch4.addConstraint(Sketcher.Constraint("Vertical", 6))
sketch4.addConstraint(Sketcher.Constraint("Horizontal", 7))
sketch4.addConstraint(Sketcher.Constraint("Horizontal", 1, 2, 4, 2))
sketch4.addConstraint(Sketcher.Constraint("Horizontal", 3, 2, 6, 2))
sketch4.addConstraint(Sketcher.Constraint("Equal", 3, 5))
sketch4.addConstraint(Sketcher.Constraint("DistanceX", 1, 1, 1, 2, Q("11.5 mm")))
sketch4.addConstraint(Sketcher.Constraint("DistanceY", 0, 2, 0, 1, Q("6.5 mm")))
sketch4.addConstraint(Sketcher.Constraint("DistanceX", -1, 1, 0, 2, Q("46 mm")))
sketch4.addConstraint(Sketcher.Constraint("DistanceY", -1, 1, 2, 2, Q("32 mm")))
sketch4.addConstraint(Sketcher.Constraint("DistanceX", -1, 1, 4, 2, Q("62.8 mm")))
sketch4.setExpression("Constraints[19]", "Params.sketch4_width")
sketch4.setExpression("Constraints[20]", "Params.sketch4_height")
pocket3 = body.newObject("PartDesign::Pocket", "Pocket002")
pocket3.Profile = sketch4
pocket3.setExpression("Length", "Params.pocket3_length")

# Sketch on YZ plane
sketch5 = body.newObject("Sketcher::SketchObject", "Sketch004")
sketch5.AttachmentSupport = (doc.getObject("YZ_Plane"), [""])
sketch5.MapMode = "FlatFace"
sketch5.AttachmentOffset = App.Placement(App.Vector(0, 0, 220), App.Rotation())
sketch5.addGeometry(Part.LineSegment(App.Vector(24, -67, 0), App.Vector(14, -67, 0)), False)
sketch5.addGeometry(Part.LineSegment(App.Vector(14, -67, 0), App.Vector(14, -113, 0)), False)
sketch5.addGeometry(Part.LineSegment(App.Vector(14, -113, 0), App.Vector(24, -113, 0)), False)
sketch5.addGeometry(Part.LineSegment(App.Vector(24, -113, 0), App.Vector(24, -67, 0)), False)
sketch5.addConstraint(Sketcher.Constraint("Coincident", 0, 2, 1, 1))
sketch5.addConstraint(Sketcher.Constraint("Coincident", 1, 2, 2, 1))
sketch5.addConstraint(Sketcher.Constraint("Coincident", 2, 2, 3, 1))
sketch5.addConstraint(Sketcher.Constraint("Coincident", 3, 2, 0, 1))
sketch5.addConstraint(Sketcher.Constraint("Horizontal", 0))
sketch5.addConstraint(Sketcher.Constraint("Vertical", 1))
sketch5.addConstraint(Sketcher.Constraint("Horizontal", 2))
sketch5.addConstraint(Sketcher.Constraint("Vertical", 3))
sketch5.addConstraint(Sketcher.Constraint("DistanceX", 0, 2, 0, 1, Q("10 mm")))
sketch5.addConstraint(Sketcher.Constraint("DistanceY", 1, 2, 1, 1, Q("45.536818 mm")))
sketch5.addConstraint(Sketcher.Constraint("DistanceX", -1, 1, 0, 2, Q("14.480229 mm")))
sketch5.addConstraint(Sketcher.Constraint("DistanceY", 0, 2, -1, 1, Q("67.231591 mm")))
sketch5.setExpression("Constraints[8]", "Params.sketch5_width")
pocket4 = body.newObject("PartDesign::Pocket", "Pocket003")
pocket4.Profile = sketch5
pocket4.setExpression("Length", "Params.pocket4_length")

# Sketch on XY plane
sketch6 = body.newObject("Sketcher::SketchObject", "Sketch005")
sketch6.AttachmentSupport = (doc.getObject("XY_Plane"), [""])
sketch6.MapMode = "FlatFace"
sketch6.AttachmentOffset = App.Placement(App.Vector(0, 0, -180), App.Rotation())
sketch6.addGeometry(Part.LineSegment(App.Vector(200, 23, 0), App.Vector(200, 15, 0)), False)
sketch6.addGeometry(Part.LineSegment(App.Vector(200, 15, 0), App.Vector(184, 15, 0)), False)
sketch6.addGeometry(Part.LineSegment(App.Vector(184, 15, 0), App.Vector(184, 23, 0)), False)
sketch6.addGeometry(Part.LineSegment(App.Vector(184, 23, 0), App.Vector(200, 23, 0)), False)
sketch6.addGeometry(Part.LineSegment(App.Vector(176, 23, 0), App.Vector(176, 15, 0)), False)
sketch6.addGeometry(Part.LineSegment(App.Vector(176, 15, 0), App.Vector(160, 15, 0)), False)
sketch6.addGeometry(Part.LineSegment(App.Vector(160, 15, 0), App.Vector(160, 23, 0)), False)
sketch6.addGeometry(Part.LineSegment(App.Vector(160, 23, 0), App.Vector(176, 23, 0)), False)
sketch6.addGeometry(Part.LineSegment(App.Vector(152, 23, 0), App.Vector(152, 15, 0)), False)
sketch6.addGeometry(Part.LineSegment(App.Vector(152, 15, 0), App.Vector(136, 15, 0)), False)
sketch6.addGeometry(Part.LineSegment(App.Vector(136, 15, 0), App.Vector(136, 23, 0)), False)
sketch6.addGeometry(Part.LineSegment(App.Vector(136, 23, 0), App.Vector(152, 23, 0)), False)
sketch6.addGeometry(Part.LineSegment(App.Vector(128, 23, 0), App.Vector(128, 15, 0)), False)
sketch6.addGeometry(Part.LineSegment(App.Vector(128, 15, 0), App.Vector(112, 15, 0)), False)
sketch6.addGeometry(Part.LineSegment(App.Vector(112, 15, 0), App.Vector(112, 23, 0)), False)
sketch6.addGeometry(Part.LineSegment(App.Vector(112, 23, 0), App.Vector(128, 23, 0)), False)
sketch6.addConstraint(Sketcher.Constraint("Coincident", 0, 2, 1, 1))
sketch6.addConstraint(Sketcher.Constraint("Coincident", 1, 2, 2, 1))
sketch6.addConstraint(Sketcher.Constraint("Coincident", 2, 2, 3, 1))
sketch6.addConstraint(Sketcher.Constraint("Coincident", 3, 2, 0, 1))
sketch6.addConstraint(Sketcher.Constraint("Coincident", 4, 2, 5, 1))
sketch6.addConstraint(Sketcher.Constraint("Coincident", 5, 2, 6, 1))
sketch6.addConstraint(Sketcher.Constraint("Coincident", 6, 2, 7, 1))
sketch6.addConstraint(Sketcher.Constraint("Coincident", 7, 2, 4, 1))
sketch6.addConstraint(Sketcher.Constraint("Coincident", 8, 2, 9, 1))
sketch6.addConstraint(Sketcher.Constraint("Coincident", 9, 2, 10, 1))
sketch6.addConstraint(Sketcher.Constraint("Coincident", 10, 2, 11, 1))
sketch6.addConstraint(Sketcher.Constraint("Coincident", 11, 2, 8, 1))
sketch6.addConstraint(Sketcher.Constraint("Coincident", 12, 2, 13, 1))
sketch6.addConstraint(Sketcher.Constraint("Coincident", 13, 2, 14, 1))
sketch6.addConstraint(Sketcher.Constraint("Coincident", 14, 2, 15, 1))
sketch6.addConstraint(Sketcher.Constraint("Coincident", 15, 2, 12, 1))
sketch6.addConstraint(Sketcher.Constraint("Vertical", 0))
sketch6.addConstraint(Sketcher.Constraint("Horizontal", 1))
sketch6.addConstraint(Sketcher.Constraint("Vertical", 2))
sketch6.addConstraint(Sketcher.Constraint("Horizontal", 3))
sketch6.addConstraint(Sketcher.Constraint("Vertical", 4))
sketch6.addConstraint(Sketcher.Constraint("Horizontal", 5))
sketch6.addConstraint(Sketcher.Constraint("Vertical", 6))
sketch6.addConstraint(Sketcher.Constraint("Horizontal", 7))
sketch6.addConstraint(Sketcher.Constraint("Vertical", 8))
sketch6.addConstraint(Sketcher.Constraint("Horizontal", 9))
sketch6.addConstraint(Sketcher.Constraint("Vertical", 10))
sketch6.addConstraint(Sketcher.Constraint("Horizontal", 11))
sketch6.addConstraint(Sketcher.Constraint("Vertical", 12))
sketch6.addConstraint(Sketcher.Constraint("Horizontal", 13))
sketch6.addConstraint(Sketcher.Constraint("Vertical", 14))
sketch6.addConstraint(Sketcher.Constraint("Horizontal", 15))
sketch6.addConstraint(Sketcher.Constraint("Horizontal", 1, 2, 4, 2))
sketch6.addConstraint(Sketcher.Constraint("Horizontal", 3, 2, 6, 2))
sketch6.addConstraint(Sketcher.Constraint("Horizontal", 5, 2, 8, 2))
sketch6.addConstraint(Sketcher.Constraint("Horizontal", 7, 2, 10, 2))
sketch6.addConstraint(Sketcher.Constraint("Horizontal", 9, 2, 12, 2))
sketch6.addConstraint(Sketcher.Constraint("Horizontal", 11, 2, 14, 2))
sketch6.addConstraint(Sketcher.Constraint("Equal", 3, 5))
sketch6.addConstraint(Sketcher.Constraint("Equal", 7, 9))
sketch6.addConstraint(Sketcher.Constraint("Equal", 11, 13))
sketch6.addConstraint(Sketcher.Constraint("DistanceX", 1, 2, 1, 1, Q("16 mm")))
sketch6.addConstraint(Sketcher.Constraint("DistanceY", 0, 2, 0, 1, Q("8.2 mm")))
sketch6.addConstraint(Sketcher.Constraint("DistanceX", -1, 1, 0, 2, Q("200 mm")))
sketch6.addConstraint(Sketcher.Constraint("DistanceY", -1, 1, 0, 2, Q("15 mm")))
sketch6.addConstraint(Sketcher.Constraint("DistanceX", -1, 1, 4, 2, Q("176 mm")))
sketch6.addConstraint(Sketcher.Constraint("DistanceX", -1, 1, 8, 2, Q("152 mm")))
sketch6.addConstraint(Sketcher.Constraint("DistanceX", -1, 1, 12, 2, Q("128 mm")))
sketch6.setExpression("Constraints[41]", "Params.sketch6_width")
sketch6.setExpression("Constraints[42]", "Params.sketch6_height")
pocket5 = body.newObject("PartDesign::Pocket", "Pocket004")
pocket5.Profile = sketch6
pocket5.setExpression("Length", "Params.pocket5_length")
pocket5.Reversed = True

doc.recompute()
